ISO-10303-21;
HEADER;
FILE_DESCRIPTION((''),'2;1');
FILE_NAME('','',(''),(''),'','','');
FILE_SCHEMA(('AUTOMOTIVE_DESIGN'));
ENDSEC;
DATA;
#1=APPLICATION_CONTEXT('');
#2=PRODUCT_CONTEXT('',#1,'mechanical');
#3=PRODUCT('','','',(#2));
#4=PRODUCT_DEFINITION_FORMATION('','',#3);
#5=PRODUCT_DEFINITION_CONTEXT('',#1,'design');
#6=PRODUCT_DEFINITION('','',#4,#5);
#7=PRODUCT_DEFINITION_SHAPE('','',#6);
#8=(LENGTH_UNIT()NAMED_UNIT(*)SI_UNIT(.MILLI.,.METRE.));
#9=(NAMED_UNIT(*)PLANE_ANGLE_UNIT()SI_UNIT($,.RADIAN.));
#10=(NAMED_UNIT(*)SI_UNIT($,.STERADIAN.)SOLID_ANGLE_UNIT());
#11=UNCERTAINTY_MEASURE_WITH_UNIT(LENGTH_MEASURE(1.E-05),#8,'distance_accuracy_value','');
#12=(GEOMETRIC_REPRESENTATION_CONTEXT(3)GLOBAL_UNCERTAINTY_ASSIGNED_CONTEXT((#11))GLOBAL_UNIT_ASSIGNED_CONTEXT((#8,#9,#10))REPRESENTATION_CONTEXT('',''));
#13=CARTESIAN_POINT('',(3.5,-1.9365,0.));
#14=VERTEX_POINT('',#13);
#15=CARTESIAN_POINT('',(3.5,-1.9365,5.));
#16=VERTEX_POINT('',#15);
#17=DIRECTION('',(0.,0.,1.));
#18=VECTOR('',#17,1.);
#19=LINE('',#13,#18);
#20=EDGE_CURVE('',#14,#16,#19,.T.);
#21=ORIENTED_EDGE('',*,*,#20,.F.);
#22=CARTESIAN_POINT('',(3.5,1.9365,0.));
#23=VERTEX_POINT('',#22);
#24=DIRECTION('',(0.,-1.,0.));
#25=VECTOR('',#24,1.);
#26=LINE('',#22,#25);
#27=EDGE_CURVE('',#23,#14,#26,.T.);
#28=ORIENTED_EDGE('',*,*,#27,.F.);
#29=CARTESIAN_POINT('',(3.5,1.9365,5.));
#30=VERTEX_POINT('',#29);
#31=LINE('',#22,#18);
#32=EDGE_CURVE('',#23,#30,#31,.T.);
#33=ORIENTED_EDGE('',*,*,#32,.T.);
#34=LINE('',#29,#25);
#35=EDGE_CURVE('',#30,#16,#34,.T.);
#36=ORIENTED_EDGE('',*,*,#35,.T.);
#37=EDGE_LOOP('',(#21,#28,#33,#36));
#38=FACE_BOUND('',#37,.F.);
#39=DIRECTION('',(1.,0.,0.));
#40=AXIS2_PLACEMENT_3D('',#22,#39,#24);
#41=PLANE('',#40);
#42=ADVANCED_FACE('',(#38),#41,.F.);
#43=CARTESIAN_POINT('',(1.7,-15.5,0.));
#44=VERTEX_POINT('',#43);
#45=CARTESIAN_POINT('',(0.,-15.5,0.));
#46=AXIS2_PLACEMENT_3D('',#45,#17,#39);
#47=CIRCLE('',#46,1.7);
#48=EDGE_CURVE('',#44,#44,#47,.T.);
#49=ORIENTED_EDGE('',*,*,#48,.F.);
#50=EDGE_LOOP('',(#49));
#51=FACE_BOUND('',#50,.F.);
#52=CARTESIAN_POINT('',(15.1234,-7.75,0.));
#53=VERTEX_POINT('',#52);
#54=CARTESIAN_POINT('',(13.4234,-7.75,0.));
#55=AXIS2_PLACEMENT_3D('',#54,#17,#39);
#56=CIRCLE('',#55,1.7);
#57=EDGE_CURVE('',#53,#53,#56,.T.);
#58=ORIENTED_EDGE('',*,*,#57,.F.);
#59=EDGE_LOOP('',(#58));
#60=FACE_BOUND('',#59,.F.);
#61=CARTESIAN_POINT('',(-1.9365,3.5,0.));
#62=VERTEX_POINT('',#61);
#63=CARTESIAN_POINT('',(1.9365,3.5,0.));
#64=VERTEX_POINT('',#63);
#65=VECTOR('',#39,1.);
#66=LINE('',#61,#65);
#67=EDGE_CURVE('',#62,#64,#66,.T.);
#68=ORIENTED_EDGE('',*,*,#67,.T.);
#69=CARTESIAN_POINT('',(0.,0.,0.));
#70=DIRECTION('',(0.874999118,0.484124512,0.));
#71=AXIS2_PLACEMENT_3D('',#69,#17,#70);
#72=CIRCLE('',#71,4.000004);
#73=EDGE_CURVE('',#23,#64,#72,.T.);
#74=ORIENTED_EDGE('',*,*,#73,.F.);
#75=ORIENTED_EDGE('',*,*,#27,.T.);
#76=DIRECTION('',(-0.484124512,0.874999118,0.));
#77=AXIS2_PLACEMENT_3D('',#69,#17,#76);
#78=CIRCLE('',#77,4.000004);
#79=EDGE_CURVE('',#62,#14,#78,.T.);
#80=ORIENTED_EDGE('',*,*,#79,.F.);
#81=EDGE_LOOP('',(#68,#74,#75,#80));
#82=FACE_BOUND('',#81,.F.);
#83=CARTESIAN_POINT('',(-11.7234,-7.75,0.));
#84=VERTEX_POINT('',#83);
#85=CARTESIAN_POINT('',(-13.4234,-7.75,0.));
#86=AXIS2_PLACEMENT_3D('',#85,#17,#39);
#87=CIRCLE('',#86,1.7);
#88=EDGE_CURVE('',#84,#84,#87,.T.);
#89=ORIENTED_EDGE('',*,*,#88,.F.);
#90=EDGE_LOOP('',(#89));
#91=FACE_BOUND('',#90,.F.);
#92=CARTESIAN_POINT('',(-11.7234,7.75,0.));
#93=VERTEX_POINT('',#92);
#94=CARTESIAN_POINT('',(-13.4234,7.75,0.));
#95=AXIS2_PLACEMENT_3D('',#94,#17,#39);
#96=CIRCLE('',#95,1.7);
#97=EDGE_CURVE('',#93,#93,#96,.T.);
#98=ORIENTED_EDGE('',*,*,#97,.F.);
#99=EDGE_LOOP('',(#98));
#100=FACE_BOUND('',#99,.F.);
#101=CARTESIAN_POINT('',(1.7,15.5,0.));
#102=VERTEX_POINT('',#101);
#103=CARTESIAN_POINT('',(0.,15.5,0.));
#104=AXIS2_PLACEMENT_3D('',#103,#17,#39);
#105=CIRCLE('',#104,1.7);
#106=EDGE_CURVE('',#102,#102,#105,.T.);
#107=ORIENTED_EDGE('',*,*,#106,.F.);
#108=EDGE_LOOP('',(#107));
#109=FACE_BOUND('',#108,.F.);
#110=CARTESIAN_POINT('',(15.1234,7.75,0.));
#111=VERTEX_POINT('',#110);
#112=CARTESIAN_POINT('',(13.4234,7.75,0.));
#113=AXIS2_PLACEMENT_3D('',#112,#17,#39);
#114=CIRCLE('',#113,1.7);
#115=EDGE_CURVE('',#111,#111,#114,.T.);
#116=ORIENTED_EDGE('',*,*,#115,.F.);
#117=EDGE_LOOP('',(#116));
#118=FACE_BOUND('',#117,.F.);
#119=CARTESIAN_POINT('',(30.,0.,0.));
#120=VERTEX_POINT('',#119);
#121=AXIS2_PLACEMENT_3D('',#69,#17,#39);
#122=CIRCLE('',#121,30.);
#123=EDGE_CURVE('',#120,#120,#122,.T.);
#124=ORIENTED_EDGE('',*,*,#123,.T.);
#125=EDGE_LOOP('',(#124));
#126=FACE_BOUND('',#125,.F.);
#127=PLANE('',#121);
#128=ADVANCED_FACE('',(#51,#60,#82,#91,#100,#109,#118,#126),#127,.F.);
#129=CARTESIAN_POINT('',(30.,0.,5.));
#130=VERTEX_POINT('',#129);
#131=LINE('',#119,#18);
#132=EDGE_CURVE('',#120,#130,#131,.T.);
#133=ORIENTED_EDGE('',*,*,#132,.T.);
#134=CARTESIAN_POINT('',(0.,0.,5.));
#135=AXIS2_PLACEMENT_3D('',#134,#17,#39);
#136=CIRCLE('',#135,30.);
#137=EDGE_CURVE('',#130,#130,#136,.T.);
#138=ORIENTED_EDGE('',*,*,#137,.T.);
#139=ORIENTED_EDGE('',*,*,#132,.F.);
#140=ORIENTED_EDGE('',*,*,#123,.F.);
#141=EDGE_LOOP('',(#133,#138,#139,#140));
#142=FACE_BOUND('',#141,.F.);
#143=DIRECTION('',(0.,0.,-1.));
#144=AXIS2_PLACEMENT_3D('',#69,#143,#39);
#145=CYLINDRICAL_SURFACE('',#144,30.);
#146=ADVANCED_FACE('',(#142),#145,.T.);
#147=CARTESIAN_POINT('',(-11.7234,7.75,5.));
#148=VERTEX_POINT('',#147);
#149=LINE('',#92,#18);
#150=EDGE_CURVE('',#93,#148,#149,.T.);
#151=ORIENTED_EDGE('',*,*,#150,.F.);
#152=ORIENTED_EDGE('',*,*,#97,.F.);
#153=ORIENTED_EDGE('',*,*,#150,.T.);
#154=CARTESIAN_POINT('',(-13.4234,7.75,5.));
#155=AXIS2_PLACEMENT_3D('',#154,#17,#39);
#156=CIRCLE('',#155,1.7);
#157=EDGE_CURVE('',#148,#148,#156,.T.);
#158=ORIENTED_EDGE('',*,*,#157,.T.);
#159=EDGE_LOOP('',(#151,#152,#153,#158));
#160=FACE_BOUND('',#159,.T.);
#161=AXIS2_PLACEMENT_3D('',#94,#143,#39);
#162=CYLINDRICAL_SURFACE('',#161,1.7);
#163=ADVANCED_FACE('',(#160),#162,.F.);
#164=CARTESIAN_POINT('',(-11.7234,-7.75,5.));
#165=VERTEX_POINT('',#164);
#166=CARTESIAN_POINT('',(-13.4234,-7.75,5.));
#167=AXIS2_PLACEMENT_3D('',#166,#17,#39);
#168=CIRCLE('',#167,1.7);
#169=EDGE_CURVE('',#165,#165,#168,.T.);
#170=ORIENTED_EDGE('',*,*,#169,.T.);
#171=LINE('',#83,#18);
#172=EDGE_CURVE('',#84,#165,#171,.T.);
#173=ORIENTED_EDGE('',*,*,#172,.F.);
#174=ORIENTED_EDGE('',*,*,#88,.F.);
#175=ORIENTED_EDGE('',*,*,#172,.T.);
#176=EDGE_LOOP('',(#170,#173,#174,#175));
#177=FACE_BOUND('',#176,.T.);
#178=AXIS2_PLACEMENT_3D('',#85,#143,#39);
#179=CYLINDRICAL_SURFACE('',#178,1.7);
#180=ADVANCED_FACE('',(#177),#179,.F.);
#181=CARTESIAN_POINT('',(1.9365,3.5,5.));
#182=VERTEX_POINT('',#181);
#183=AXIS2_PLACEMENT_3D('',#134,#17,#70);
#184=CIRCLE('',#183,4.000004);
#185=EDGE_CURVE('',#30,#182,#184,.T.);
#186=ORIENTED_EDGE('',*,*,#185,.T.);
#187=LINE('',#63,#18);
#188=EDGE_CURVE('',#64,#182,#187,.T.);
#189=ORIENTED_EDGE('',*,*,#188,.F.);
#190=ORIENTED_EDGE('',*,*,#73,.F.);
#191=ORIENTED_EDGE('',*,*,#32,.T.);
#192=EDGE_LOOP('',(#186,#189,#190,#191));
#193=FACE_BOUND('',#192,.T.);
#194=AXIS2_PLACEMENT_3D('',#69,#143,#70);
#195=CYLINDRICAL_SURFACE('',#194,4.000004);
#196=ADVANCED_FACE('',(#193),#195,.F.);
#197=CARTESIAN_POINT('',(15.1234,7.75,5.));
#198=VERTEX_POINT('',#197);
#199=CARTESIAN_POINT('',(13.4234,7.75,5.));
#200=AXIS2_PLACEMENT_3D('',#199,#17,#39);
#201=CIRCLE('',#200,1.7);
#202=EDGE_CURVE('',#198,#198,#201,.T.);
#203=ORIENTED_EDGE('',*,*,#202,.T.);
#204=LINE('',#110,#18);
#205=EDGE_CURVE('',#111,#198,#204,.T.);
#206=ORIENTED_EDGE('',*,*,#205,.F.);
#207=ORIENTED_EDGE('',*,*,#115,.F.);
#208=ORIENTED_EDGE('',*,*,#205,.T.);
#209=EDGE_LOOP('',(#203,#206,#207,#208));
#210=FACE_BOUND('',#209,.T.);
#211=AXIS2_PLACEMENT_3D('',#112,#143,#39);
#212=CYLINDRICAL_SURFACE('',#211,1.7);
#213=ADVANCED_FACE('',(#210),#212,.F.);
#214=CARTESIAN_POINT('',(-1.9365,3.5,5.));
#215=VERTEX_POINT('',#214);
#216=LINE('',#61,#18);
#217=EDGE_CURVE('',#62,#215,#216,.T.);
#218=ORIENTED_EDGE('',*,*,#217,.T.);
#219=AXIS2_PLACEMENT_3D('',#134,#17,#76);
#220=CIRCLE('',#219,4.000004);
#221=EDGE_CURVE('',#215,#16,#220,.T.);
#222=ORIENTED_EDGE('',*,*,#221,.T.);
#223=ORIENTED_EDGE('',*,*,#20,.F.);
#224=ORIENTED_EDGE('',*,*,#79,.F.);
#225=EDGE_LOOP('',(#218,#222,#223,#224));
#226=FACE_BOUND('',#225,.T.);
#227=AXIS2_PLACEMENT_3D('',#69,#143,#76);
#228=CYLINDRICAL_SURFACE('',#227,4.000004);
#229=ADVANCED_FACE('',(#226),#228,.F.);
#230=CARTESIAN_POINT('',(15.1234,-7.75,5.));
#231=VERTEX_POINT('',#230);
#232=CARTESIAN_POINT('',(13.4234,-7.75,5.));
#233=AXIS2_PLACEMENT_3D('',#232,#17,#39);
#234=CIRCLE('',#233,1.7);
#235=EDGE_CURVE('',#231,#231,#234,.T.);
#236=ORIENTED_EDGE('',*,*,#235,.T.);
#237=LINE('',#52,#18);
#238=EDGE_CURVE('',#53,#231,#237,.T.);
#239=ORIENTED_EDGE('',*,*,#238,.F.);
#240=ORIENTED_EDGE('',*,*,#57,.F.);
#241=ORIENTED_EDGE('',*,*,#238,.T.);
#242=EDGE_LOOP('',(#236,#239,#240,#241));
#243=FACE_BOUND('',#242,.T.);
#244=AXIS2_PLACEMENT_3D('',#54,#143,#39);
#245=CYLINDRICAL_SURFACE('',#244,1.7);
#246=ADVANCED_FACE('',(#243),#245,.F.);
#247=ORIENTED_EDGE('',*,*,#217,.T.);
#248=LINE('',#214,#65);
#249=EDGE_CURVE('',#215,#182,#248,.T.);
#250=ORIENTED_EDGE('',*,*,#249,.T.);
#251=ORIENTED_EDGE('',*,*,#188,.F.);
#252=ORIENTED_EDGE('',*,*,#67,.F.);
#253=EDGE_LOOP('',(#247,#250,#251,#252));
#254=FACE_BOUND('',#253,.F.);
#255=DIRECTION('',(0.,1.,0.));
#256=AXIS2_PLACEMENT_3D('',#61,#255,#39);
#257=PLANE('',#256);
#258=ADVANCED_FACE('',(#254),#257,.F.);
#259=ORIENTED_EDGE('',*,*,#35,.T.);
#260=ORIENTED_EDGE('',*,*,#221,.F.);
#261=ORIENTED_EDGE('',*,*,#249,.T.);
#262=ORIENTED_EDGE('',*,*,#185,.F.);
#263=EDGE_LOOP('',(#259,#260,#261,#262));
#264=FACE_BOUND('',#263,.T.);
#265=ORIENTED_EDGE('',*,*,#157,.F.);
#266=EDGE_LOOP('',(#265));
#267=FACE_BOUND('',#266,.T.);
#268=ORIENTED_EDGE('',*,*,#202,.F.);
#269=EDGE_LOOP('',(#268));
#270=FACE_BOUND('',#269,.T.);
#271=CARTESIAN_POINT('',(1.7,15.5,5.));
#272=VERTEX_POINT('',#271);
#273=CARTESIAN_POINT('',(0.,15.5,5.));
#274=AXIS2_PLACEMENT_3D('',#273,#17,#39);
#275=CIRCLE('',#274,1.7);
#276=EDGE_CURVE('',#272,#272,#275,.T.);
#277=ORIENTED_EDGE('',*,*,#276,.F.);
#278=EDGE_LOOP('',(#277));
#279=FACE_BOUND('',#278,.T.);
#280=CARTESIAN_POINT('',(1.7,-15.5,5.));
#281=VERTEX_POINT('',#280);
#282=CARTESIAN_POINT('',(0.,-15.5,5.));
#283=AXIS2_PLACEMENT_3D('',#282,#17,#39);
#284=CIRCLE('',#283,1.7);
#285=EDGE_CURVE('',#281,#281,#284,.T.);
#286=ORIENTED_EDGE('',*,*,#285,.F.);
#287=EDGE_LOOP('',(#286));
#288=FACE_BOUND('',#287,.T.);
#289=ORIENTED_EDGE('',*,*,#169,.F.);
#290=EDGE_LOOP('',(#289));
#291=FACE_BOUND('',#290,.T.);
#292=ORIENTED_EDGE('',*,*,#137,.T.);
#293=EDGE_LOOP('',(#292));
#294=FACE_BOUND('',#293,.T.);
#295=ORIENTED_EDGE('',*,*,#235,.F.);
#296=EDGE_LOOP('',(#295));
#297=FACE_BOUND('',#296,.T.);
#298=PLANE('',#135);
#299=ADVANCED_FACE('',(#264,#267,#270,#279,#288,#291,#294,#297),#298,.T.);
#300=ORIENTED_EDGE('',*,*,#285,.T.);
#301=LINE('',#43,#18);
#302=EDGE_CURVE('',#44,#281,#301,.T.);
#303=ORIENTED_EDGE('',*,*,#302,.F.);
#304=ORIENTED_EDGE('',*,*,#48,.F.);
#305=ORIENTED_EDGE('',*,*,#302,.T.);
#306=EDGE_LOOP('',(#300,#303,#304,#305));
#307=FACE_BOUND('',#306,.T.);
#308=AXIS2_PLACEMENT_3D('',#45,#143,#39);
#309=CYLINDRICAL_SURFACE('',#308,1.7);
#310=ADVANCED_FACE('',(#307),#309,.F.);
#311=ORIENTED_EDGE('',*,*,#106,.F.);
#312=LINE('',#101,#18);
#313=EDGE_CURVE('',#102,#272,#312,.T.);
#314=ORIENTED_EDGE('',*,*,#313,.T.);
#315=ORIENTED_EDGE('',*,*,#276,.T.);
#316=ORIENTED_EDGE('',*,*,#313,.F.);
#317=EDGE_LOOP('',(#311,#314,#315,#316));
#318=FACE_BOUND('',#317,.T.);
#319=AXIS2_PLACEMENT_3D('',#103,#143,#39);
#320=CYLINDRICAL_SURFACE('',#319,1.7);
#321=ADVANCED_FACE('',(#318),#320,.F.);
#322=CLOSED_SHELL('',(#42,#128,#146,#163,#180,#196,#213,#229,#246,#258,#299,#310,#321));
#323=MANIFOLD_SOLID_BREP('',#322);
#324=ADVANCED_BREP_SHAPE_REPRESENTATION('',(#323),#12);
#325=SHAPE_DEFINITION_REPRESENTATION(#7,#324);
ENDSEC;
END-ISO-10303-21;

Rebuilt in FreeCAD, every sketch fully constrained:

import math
import FreeCAD as App
import Part
import Sketcher

V = App.Vector

doc = App.newDocument("Part")
body = doc.addObject("PartDesign::Body", "Body")

# Sketch on XY plane
sketch1 = body.newObject("Sketcher::SketchObject", "Sketch")
sketch1.AttachmentSupport = (doc.getObject("XY_Plane"), [""])
sketch1.MapMode = "FlatFace"
sketch1.addGeometry([
    Part.Circle(V(0, 0, 0), V(0, 0, 1), 30),  # 0
    Part.Circle(V(-13.4, -7.8, 0), V(0, 0, 1), 1.7),  # 1
    Part.ArcOfCircle(Part.Circle(V(0, 0, 0), V(0, 0, 1), 4), math.radians(119), math.radians(331)),  # 2
    Part.LineSegment(V(-1.9, 3.5, 0), V(1.9, 3.5, 0)),  # 3
    Part.ArcOfCircle(Part.Circle(V(0, 0, 0), V(0, 0, 1), 4), math.radians(29), math.radians(61)),  # 4
    Part.LineSegment(V(3.5, 1.9, 0), V(3.5, -1.9, 0)),  # 5
    Part.Circle(V(0, -15.5, 0), V(0, 0, 1), 1.7),  # 6
    Part.Circle(V(13.4, -7.8, 0), V(0, 0, 1), 1.7),  # 7
    Part.Circle(V(-13.4, 7.8, 0), V(0, 0, 1), 1.7),  # 8
    Part.Circle(V(13.4, 7.8, 0), V(0, 0, 1), 1.7),  # 9
    Part.Circle(V(0, 15.5, 0), V(0, 0, 1), 1.7),  # 10
], False)
sketch1.addConstraint([
    Sketcher.Constraint("Coincident", 2, 1, 3, 1),
    Sketcher.Constraint("Coincident", 3, 2, 4, 2),
    Sketcher.Constraint("Coincident", 4, 1, 5, 1),
    Sketcher.Constraint("Coincident", 5, 2, 2, 2),
    Sketcher.Constraint("Horizontal", 3),
    Sketcher.Constraint("Vertical", 5),
    Sketcher.Constraint("Coincident", 0, 3, -1, 1),
    Sketcher.Constraint("Coincident", 2, 3, -1, 1),
    Sketcher.Constraint("Coincident", 4, 3, -1, 1),
    Sketcher.Constraint("Equal", 2, 4),
    Sketcher.Constraint("Equal", 1, 6),
    Sketcher.Constraint("Equal", 6, 7),
    Sketcher.Constraint("Equal", 7, 8),
    Sketcher.Constraint("Equal", 8, 9),
    Sketcher.Constraint("Equal", 9, 10),
    Sketcher.Constraint("Symmetric", 7, 3, 8, 3, -1, 1),
    Sketcher.Constraint("Symmetric", 1, 3, 9, 3, -1, 1),
    Sketcher.Constraint("Symmetric", 6, 3, 10, 3, -1, 1),
    Sketcher.Constraint("Symmetric", 1, 3, 7, 3, -2),
    Sketcher.Constraint("PointOnObject", 6, 3, -2),
    Sketcher.Constraint("Equal", 3, 5),
    Sketcher.Constraint("Diameter", 1, 3.4),
    Sketcher.Constraint("Diameter", 0, 60.0),
    Sketcher.Constraint("Radius", 2, 4.0),
    Sketcher.Constraint("DistanceY", 2, 1, 10, 3, 12.0),
    Sketcher.Constraint("DistanceY", 6, 3, -1, 1, 15.5),
    Sketcher.Constraint("DistanceY", 1, 3, 8, 3, 15.5),
    Sketcher.Constraint("DistanceX", 8, 3, 2, 1, 11.487),
])
pad1 = body.newObject("PartDesign::Pad", "Pad")
pad1.Profile = sketch1
pad1.Length = 5

doc.recompute()
